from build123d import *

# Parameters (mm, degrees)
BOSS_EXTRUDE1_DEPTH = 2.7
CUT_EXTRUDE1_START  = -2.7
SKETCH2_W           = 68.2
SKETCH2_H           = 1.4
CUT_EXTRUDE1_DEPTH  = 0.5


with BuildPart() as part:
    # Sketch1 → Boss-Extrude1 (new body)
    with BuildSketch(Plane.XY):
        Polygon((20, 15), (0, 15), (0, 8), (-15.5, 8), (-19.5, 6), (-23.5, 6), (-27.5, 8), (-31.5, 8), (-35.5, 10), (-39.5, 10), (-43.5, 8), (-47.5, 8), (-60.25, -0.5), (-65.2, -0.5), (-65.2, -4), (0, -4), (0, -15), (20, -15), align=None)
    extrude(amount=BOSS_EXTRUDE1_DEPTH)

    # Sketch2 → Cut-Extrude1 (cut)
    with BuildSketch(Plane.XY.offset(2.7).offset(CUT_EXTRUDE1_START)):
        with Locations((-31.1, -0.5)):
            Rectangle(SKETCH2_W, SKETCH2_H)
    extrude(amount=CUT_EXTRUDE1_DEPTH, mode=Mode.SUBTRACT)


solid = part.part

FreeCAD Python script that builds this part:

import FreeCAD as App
import Part
import Sketcher
from FreeCAD import Vector

doc = App.newDocument("Part")
body = doc.addObject("PartDesign::Body", "Body")

sketch1 = doc.addObject("Sketcher::SketchObject", "Sketch")
body.addObject(sketch1)
sketch1.AttachmentSupport = (doc.XY_Plane, [""])
sketch1.MapMode = "FlatFace"
sketch1.addGeometry([
    Part.LineSegment(Vector(20, 15, 0), Vector(0, 15, 0)),
    Part.LineSegment(Vector(0, 15, 0), Vector(0, 8, 0)),
    Part.LineSegment(Vector(0, 8, 0), Vector(-15.5, 8, 0)),
    Part.LineSegment(Vector(-15.5, 8, 0), Vector(-19.5, 6, 0)),
    Part.LineSegment(Vector(-19.5, 6, 0), Vector(-23.5, 6, 0)),
    Part.LineSegment(Vector(-23.5, 6, 0), Vector(-27.5, 8, 0)),
    Part.LineSegment(Vector(-27.5, 8, 0), Vector(-31.5, 8, 0)),
    Part.LineSegment(Vector(-31.5, 8, 0), Vector(-35.5, 10, 0)),
    Part.LineSegment(Vector(-35.5, 10, 0), Vector(-39.5, 10, 0)),
    Part.LineSegment(Vector(-39.5, 10, 0), Vector(-43.5, 8, 0)),
    Part.LineSegment(Vector(-43.5, 8, 0), Vector(-47.5, 8, 0)),
    Part.LineSegment(Vector(-47.5, 8, 0), Vector(-60.2, -0.5, 0)),
    Part.LineSegment(Vector(-60.2, -0.5, 0), Vector(-65.2, -0.5, 0)),
    Part.LineSegment(Vector(-65.2, -0.5, 0), Vector(-65.2, -4, 0)),
    Part.LineSegment(Vector(-65.2, -4, 0), Vector(0, -4, 0)),
    Part.LineSegment(Vector(0, -4, 0), Vector(0, -15, 0)),
    Part.LineSegment(Vector(0, -15, 0), Vector(20, -15, 0)),
    Part.LineSegment(Vector(20, -15, 0), Vector(20, 15, 0)),
], False)
sketch1.addConstraint([
    Sketcher.Constraint("Coincident", 0, 2, 1, 1),
    Sketcher.Constraint("Coincident", 1, 2, 2, 1),
    Sketcher.Constraint("Coincident", 2, 2, 3, 1),
    Sketcher.Constraint("Coincident", 3, 2, 4, 1),
    Sketcher.Constraint("Coincident", 4, 2, 5, 1),
    Sketcher.Constraint("Coincident", 5, 2, 6, 1),
    Sketcher.Constraint("Coincident", 6, 2, 7, 1),
    Sketcher.Constraint("Coincident", 7, 2, 8, 1),
    Sketcher.Constraint("Coincident", 8, 2, 9, 1),
    Sketcher.Constraint("Coincident", 9, 2, 10, 1),
    Sketcher.Constraint("Coincident", 10, 2, 11, 1),
    Sketcher.Constraint("Coincident", 11, 2, 12, 1),
    Sketcher.Constraint("Coincident", 12, 2, 13, 1),
    Sketcher.Constraint("Coincident", 13, 2, 14, 1),
    Sketcher.Constraint("Coincident", 14, 2, 15, 1),
    Sketcher.Constraint("Coincident", 15, 2, 16, 1),
    Sketcher.Constraint("Coincident", 16, 2, 17, 1),
    Sketcher.Constraint("Coincident", 17, 2, 0, 1),
    Sketcher.Constraint("Horizontal", 0),
    Sketcher.Constraint("Vertical", 1),
    Sketcher.Constraint("Horizontal", 2),
    Sketcher.Constraint("Horizontal", 4),
    Sketcher.Constraint("Horizontal", 6),
    Sketcher.Constraint("Horizontal", 8),
    Sketcher.Constraint("Horizontal", 10),
    Sketcher.Constraint("Horizontal", 12),
    Sketcher.Constraint("Vertical", 13),
    Sketcher.Constraint("Horizontal", 14),
    Sketcher.Constraint("Vertical", 15),
    Sketcher.Constraint("Horizontal", 16),
    Sketcher.Constraint("Vertical", 17),
    Sketcher.Constraint("Symmetric", 0, 2, 15, 2, -1, 1),
    Sketcher.Constraint("PointOnObject", 0, 2, -2),
    Sketcher.Constraint("Parallel", 5, 7),
    Sketcher.Constraint("Parallel", 3, 9),
    Sketcher.Constraint("Horizontal", 2, 2, 5, 2),
    Sketcher.Constraint("Horizontal", 6, 2, 9, 2),
    Sketcher.Constraint("Equal", 4, 6),
    Sketcher.Constraint("Equal", 6, 8),
    Sketcher.Constraint("Equal", 8, 10),
    Sketcher.Constraint("Equal", 3, 5),
    Sketcher.Constraint("Equal", 5, 7),
    Sketcher.Constraint("DistanceX", 0, 2, 0, 1, 20.0),
    Sketcher.Constraint("DistanceX", 4, 2, 4, 1, 4.0),
    Sketcher.Constraint("DistanceY", 1, 2, 1, 1, 7.0),
    Sketcher.Constraint("DistanceY", 15, 2, 15, 1, 11.0),
    Sketcher.Constraint("DistanceY", 17, 1, 17, 2, 30.0),
    Sketcher.Constraint("DistanceX", 2, 2, 2, 1, 15.5),
    Sketcher.Constraint("DistanceX", 14, 1, 14, 2, 65.2),
    Sketcher.Constraint("DistanceY", 13, 2, 13, 1, 3.5),
    Sketcher.Constraint("DistanceY", -1, 1, 3, 2, 6.0),
    Sketcher.Constraint("DistanceX", 3, 2, 2, 2, 4.0),
    Sketcher.Constraint("DistanceX", 12, 2, 12, 1, 4.95),
])
pad1 = doc.addObject("PartDesign::Pad", "Pad")
body.addObject(pad1)
pad1.Profile = sketch1
pad1.Length = 2.7

sketch2 = doc.addObject("Sketcher::SketchObject", "Sketch001")
body.addObject(sketch2)
sketch2.AttachmentSupport = (doc.XY_Plane, [""])
sketch2.MapMode = "FlatFace"
sketch2.addGeometry([
    Part.LineSegment(Vector(-65.2, 0.2, 0), Vector(-65.2, -1.2, 0)),
    Part.LineSegment(Vector(-65.2, -1.2, 0), Vector(3, -1.2, 0)),
    Part.LineSegment(Vector(3, -1.2, 0), Vector(3, 0.2, 0)),
    Part.LineSegment(Vector(3, 0.2, 0), Vector(-65.2, 0.2, 0)),
], False)
sketch2.addConstraint([
    Sketcher.Constraint("Coincident", 0, 2, 1, 1),
    Sketcher.Constraint("Coincident", 1, 2, 2, 1),
    Sketcher.Constraint("Coincident", 2, 2, 3, 1),
    Sketcher.Constraint("Coincident", 3, 2, 0, 1),
    Sketcher.Constraint("Vertical", 0),
    Sketcher.Constraint("Horizontal", 1),
    Sketcher.Constraint("Vertical", 2),
    Sketcher.Constraint("Horizontal", 3),
    Sketcher.Constraint("DistanceX", 1, 1, 1, 2, 68.2),
    Sketcher.Constraint("DistanceY", 0, 2, 0, 1, 1.4),
    Sketcher.Constraint("DistanceX", -1, 1, 1, 2, 3.0),
    Sketcher.Constraint("DistanceY", 0, 2, -1, 1, 1.2),
])
pocket1 = doc.addObject("PartDesign::Pocket", "Pocket")
body.addObject(pocket1)
pocket1.Profile = sketch2
pocket1.Length = 0.5
pocket1.Reversed = True

doc.recompute()
